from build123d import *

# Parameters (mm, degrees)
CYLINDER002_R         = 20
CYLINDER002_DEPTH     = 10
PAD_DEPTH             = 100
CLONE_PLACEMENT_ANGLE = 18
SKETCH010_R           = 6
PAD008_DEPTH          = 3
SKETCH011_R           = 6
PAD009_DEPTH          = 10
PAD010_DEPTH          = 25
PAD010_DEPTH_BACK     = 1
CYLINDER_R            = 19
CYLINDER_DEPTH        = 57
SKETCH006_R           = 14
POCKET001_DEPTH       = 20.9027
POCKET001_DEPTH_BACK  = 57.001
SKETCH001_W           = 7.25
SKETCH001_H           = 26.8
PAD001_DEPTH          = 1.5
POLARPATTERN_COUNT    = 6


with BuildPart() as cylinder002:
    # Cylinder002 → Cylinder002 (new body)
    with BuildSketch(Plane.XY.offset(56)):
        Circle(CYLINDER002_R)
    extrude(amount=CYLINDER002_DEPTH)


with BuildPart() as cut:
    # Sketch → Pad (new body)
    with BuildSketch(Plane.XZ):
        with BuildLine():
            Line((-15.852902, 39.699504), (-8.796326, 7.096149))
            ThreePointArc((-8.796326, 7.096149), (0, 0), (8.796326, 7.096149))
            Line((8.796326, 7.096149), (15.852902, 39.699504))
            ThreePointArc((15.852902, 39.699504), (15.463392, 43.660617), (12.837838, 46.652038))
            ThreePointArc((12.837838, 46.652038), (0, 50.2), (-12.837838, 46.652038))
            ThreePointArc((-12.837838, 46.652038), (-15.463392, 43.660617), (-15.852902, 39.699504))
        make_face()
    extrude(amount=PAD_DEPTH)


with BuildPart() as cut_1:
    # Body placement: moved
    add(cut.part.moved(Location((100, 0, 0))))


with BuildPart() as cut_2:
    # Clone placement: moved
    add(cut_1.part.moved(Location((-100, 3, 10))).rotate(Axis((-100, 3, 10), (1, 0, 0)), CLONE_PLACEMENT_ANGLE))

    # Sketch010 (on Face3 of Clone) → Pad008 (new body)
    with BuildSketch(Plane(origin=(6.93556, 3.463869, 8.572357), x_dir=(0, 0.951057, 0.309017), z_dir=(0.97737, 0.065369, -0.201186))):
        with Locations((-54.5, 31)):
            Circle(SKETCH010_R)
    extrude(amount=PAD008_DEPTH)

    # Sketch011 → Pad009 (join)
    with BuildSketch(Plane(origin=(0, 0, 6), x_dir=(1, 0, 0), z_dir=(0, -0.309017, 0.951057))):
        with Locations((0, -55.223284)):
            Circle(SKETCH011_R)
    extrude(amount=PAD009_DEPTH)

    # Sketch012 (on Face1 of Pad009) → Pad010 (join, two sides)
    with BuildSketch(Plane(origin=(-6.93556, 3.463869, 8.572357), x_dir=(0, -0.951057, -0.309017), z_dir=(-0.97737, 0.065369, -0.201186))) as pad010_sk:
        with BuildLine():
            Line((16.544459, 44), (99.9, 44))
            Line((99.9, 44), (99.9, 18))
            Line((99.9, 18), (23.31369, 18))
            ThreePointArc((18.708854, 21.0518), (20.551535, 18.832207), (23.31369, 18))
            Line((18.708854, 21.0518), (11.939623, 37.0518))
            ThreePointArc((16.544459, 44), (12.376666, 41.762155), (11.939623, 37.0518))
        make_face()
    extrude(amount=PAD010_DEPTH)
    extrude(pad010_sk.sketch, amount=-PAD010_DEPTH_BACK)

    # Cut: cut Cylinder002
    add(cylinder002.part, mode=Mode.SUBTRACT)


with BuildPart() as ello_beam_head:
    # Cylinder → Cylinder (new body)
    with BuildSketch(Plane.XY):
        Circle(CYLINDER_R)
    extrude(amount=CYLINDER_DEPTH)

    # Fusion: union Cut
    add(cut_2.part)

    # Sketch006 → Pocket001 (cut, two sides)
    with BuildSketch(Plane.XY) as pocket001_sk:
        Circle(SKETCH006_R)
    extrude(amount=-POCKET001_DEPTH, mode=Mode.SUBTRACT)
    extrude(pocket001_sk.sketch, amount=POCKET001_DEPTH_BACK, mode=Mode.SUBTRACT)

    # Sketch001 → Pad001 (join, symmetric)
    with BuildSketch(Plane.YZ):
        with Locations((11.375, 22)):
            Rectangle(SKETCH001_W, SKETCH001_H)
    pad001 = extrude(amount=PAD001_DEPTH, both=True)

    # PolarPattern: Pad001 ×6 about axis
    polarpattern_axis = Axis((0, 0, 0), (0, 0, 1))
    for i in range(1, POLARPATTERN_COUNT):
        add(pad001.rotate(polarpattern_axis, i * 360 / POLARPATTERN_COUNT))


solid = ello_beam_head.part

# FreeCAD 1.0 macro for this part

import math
import FreeCAD as App
import Part
import Sketcher
from FreeCAD import Vector

doc = App.newDocument("Part")
body = doc.addObject("PartDesign::Body", "Body")

sketch1 = doc.addObject("Sketcher::SketchObject", "Sketch")
body.addObject(sketch1)
sketch1.AttachmentSupport = (doc.XY_Plane, [""])
sketch1.MapMode = "FlatFace"
sketch1.AttachmentOffset = App.Placement(Vector(0, 0, 56), App.Rotation())
sketch1.addGeometry(Part.Circle(Vector(0, 0, 0), Vector(0, 0, 1), 20), False)
sketch1.addConstraint([
    Sketcher.Constraint("Coincident", 0, 3, -1, 1),
    Sketcher.Constraint("Diameter", 0, 40.0),
])
pad1 = doc.addObject("PartDesign::Pad", "Pad")
body.addObject(pad1)
pad1.Profile = sketch1
pad1.Length = 10
body2 = doc.addObject("PartDesign::Body", "Body001")

sketch2 = doc.addObject("Sketcher::SketchObject", "Sketch001")
body2.addObject(sketch2)
sketch2.AttachmentSupport = (doc.getObject("XZ_Plane001"), [""])
sketch2.MapMode = "FlatFace"
sketch2.addGeometry([
    Part.LineSegment(Vector(-15.852902, 39.699504, 0), Vector(-8.796326, 7.096149, 0)),
    Part.ArcOfCircle(Part.Circle(Vector(0, 9, 0), Vector(0, 0, 1), 9), math.radians(-167.787443), math.radians(-12.212557)),
    Part.LineSegment(Vector(8.796326, 7.096149, 0), Vector(15.852902, 39.699504, 0)),
    Part.ArcOfCircle(Part.Circle(Vector(9.500001, 41.074509, 0), Vector(0, 0, 1), 6.499999), math.radians(-12.212568), math.radians(59.101855)),
    Part.ArcOfCircle(Part.Circle(Vector(0, 25.199997, 0), Vector(0, 0, 1), 25.000003), math.radians(59.101855), math.radians(120.898145)),
    Part.ArcOfCircle(Part.Circle(Vector(-9.500001, 41.074509, 0), Vector(0, 0, 1), 6.499999), math.radians(120.898145), math.radians(192.212568)),
], False)
sketch2.addConstraint([
    Sketcher.Constraint("Tangent", 0, 2, 1, 1),
    Sketcher.Constraint("Tangent", 1, 2, 2, 1),
    Sketcher.Constraint("Tangent", 2, 2, 3, 1),
    Sketcher.Constraint("Tangent", 3, 2, 4, 1),
    Sketcher.Constraint("Tangent", 4, 2, 5, 1),
    Sketcher.Constraint("Tangent", 5, 2, 0, 1),
    Sketcher.Constraint("Equal", 3, 5),
    Sketcher.Constraint("Symmetric", 3, 3, 5, 3, -2),
    Sketcher.Constraint("PointOnObject", 1, 3, -2),
    Sketcher.Constraint("Radius", 1, 9.0),
    Sketcher.Constraint("Radius", 3, 6.499999),
    Sketcher.Constraint("DistanceY", -1, 1, 1, 3, 9.0),
    Sketcher.Constraint("DistanceX", 5, 3, 3, 3, 19.000002),
    Sketcher.Constraint("Radius", 4, 25.000003),
    Sketcher.Constraint("DistanceX", 3, 3, 2, 2, 6.352901),
])
pad2 = doc.addObject("PartDesign::Pad", "Pad001")
body2.addObject(pad2)
pad2.Profile = sketch2
pad2.Length = 100
body3 = doc.addObject("PartDesign::Body", "Body002")
doc.recompute()

body2.Placement = App.Placement(Vector(100, 0, 0), App.Rotation(Vector(0, 0, 1), 0))
boolean = doc.addObject("PartDesign::Boolean", "Boolean")
body3.addObject(boolean)
boolean.Type = "Fuse"
boolean.addObjects([body2])
body4 = doc.addObject("PartDesign::Body", "Body003")
doc.recompute()

body3.Placement = App.Placement(Vector(-100, 3, 10), App.Rotation(Vector(1, 0, 0), 18))
boolean2 = doc.addObject("PartDesign::Boolean", "Boolean001")
body4.addObject(boolean2)
boolean2.Type = "Fuse"
boolean2.addObjects([body3])

sketch3 = doc.addObject("Sketcher::SketchObject", "Sketch002")
body4.addObject(sketch3)
sketch3.Placement = App.Placement(Vector(6.93556, 3.463869, 8.572357), App.Rotation(Vector(0.000000243, 0.951056577, 0.309016807), Vector(0.211539279, -0.30202365, 0.929533672), Vector(0.977369497, 0.065368966, -0.201185896), "ZXY"))
sketch3.addGeometry(Part.Circle(Vector(-54.5, 31, 0), Vector(0, 0, 1), 6), False)
sketch3.addConstraint([
    Sketcher.Constraint("Diameter", 0, 12.0),
    Sketcher.Constraint("DistanceY", -1, 1, 0, 3, 31.0),
    Sketcher.Constraint("DistanceX", 0, 3, -1, 1, 54.5),
])
pad3 = doc.addObject("PartDesign::Pad", "Pad002")
body4.addObject(pad3)
pad3.Profile = sketch3
pad3.Length = 3

sketch4 = doc.addObject("Sketcher::SketchObject", "Sketch003")
body4.addObject(sketch4)
sketch4.Placement = App.Placement(Vector(0, 0, 6), App.Rotation(Vector(1, 0, 0), Vector(0, 0.951056561, 0.309016857), Vector(0, -0.309016857, 0.951056561), "ZXY"))
sketch4.addGeometry(Part.Circle(Vector(0, -55.223284, 0), Vector(0, 0, 1), 6), False)
sketch4.addConstraint([
    Sketcher.Constraint("PointOnObject", 0, 3, -2),
    Sketcher.Constraint("Diameter", 0, 12.0),
    Sketcher.Constraint("DistanceY", 0, 3, -1, 1, 55.223284),
])
pad4 = doc.addObject("PartDesign::Pad", "Pad003")
body4.addObject(pad4)
pad4.Profile = sketch4
pad4.Length = 10

sketch5 = doc.addObject("Sketcher::SketchObject", "Sketch004")
body4.addObject(sketch5)
sketch5.Placement = App.Placement(Vector(-6.93556, 3.463869, 8.572357), App.Rotation(Vector(0.000000243, -0.951056577, -0.309016807), Vector(-0.211539279, -0.30202365, 0.929533672), Vector(-0.977369497, 0.065368966, -0.201185896), "ZXY"))
sketch5.addGeometry([
    Part.LineSegment(Vector(99.9, 44, 0), Vector(16.544459, 44, 0)),
    Part.ArcOfCircle(Part.Circle(Vector(16.544459, 39, 0), Vector(0, 0, 1), 5), math.radians(90.000001), math.radians(202.932103)),
    Part.LineSegment(Vector(11.939623, 37.0518, 0), Vector(18.708854, 21.0518, 0)),
    Part.ArcOfCircle(Part.Circle(Vector(23.31369, 23, 0), Vector(0, 0, 1), 5), math.radians(-157.067899), math.radians(-90.000003)),
    Part.LineSegment(Vector(23.31369, 18, 0), Vector(99.9, 18, 0)),
    Part.LineSegment(Vector(99.9, 18, 0), Vector(99.9, 44, 0)),
], False)
sketch5.addConstraint([
    Sketcher.Constraint("Tangent", 0, 2, 1, 1),
    Sketcher.Constraint("Tangent", 1, 2, 2, 1),
    Sketcher.Constraint("Tangent", 2, 2, 3, 1),
    Sketcher.Constraint("Tangent", 3, 2, 4, 1),
    Sketcher.Constraint("Coincident", 4, 2, 5, 1),
    Sketcher.Constraint("Coincident", 5, 2, 0, 1),
    Sketcher.Constraint("Horizontal", 0),
    Sketcher.Constraint("Horizontal", 4),
    Sketcher.Constraint("Vertical", 5),
    Sketcher.Constraint("Equal", 1, 3),
    Sketcher.Constraint("Radius", 1, 5.0),
    Sketcher.Constraint("DistanceY", 5, 1, 5, 2, 26.0),
    Sketcher.Constraint("DistanceY", -1, 1, 1, 3, 39.0),
    Sketcher.Constraint("DistanceX", -1, 1, 4, 2, 99.9),
    Sketcher.Constraint("DistanceX", 0, 2, 0, 1, 83.355541),
    Sketcher.Constraint("DistanceX", 4, 1, 4, 2, 76.58631),
])
pad5 = doc.addObject("PartDesign::Pad", "Pad004")
body4.addObject(pad5)
pad5.Profile = sketch5
pad5.Type = "TwoLengths"
pad5.Length = 25
pad5.Length2 = 1
doc.recompute()

boolean3 = doc.addObject("PartDesign::Boolean", "Boolean002")
body4.addObject(boolean3)
boolean3.Type = "Cut"
boolean3.addObjects([body])
body5 = doc.addObject("PartDesign::Body", "Body004")

sketch6 = doc.addObject("Sketcher::SketchObject", "Sketch005")
body5.addObject(sketch6)
sketch6.AttachmentSupport = (doc.getObject("XY_Plane004"), [""])
sketch6.MapMode = "FlatFace"
sketch6.addGeometry(Part.Circle(Vector(0, 0, 0), Vector(0, 0, 1), 19), False)
sketch6.addConstraint([
    Sketcher.Constraint("Coincident", 0, 3, -1, 1),
    Sketcher.Constraint("Diameter", 0, 38.0),
])
pad6 = doc.addObject("PartDesign::Pad", "Pad005")
body5.addObject(pad6)
pad6.Profile = sketch6
pad6.Length = 57
doc.recompute()

boolean4 = doc.addObject("PartDesign::Boolean", "Boolean003")
body5.addObject(boolean4)
boolean4.Type = "Fuse"
boolean4.addObjects([body4])

sketch7 = doc.addObject("Sketcher::SketchObject", "Sketch006")
body5.addObject(sketch7)
sketch7.AttachmentSupport = (doc.getObject("XY_Plane004"), [""])
sketch7.MapMode = "FlatFace"
sketch7.addGeometry(Part.Circle(Vector(0, 0, 0), Vector(0, 0, 1), 14), False)
sketch7.addConstraint([
    Sketcher.Constraint("Coincident", 0, 3, -1, 1),
    Sketcher.Constraint("Diameter", 0, 28.0),
])
pocket1 = doc.addObject("PartDesign::Pocket", "Pocket")
body5.addObject(pocket1)
pocket1.Profile = sketch7
pocket1.Type = "ThroughAll"
pocket1.Midplane = True

sketch8 = doc.addObject("Sketcher::SketchObject", "Sketch007")
body5.addObject(sketch8)
sketch8.AttachmentSupport = (doc.getObject("YZ_Plane004"), [""])
sketch8.MapMode = "FlatFace"
sketch8.addGeometry([
    Part.LineSegment(Vector(7.75, 35.4, 0), Vector(7.75, 8.6, 0)),
    Part.LineSegment(Vector(7.75, 8.6, 0), Vector(15, 8.6, 0)),
    Part.LineSegment(Vector(15, 8.6, 0), Vector(15, 35.4, 0)),
    Part.LineSegment(Vector(15, 35.4, 0), Vector(7.75, 35.4, 0)),
], False)
sketch8.addConstraint([
    Sketcher.Constraint("Coincident", 0, 2, 1, 1),
    Sketcher.Constraint("Coincident", 1, 2, 2, 1),
    Sketcher.Constraint("Coincident", 2, 2, 3, 1),
    Sketcher.Constraint("Coincident", 3, 2, 0, 1),
    Sketcher.Constraint("Vertical", 0),
    Sketcher.Constraint("Horizontal", 1),
    Sketcher.Constraint("Vertical", 2),
    Sketcher.Constraint("Horizontal", 3),
    Sketcher.Constraint("DistanceY", 0, 2, 0, 1, 26.8),
    Sketcher.Constraint("DistanceX", -1, 1, 1, 2, 15.0),
    Sketcher.Constraint("DistanceX", 1, 1, 1, 2, 7.25),
    Sketcher.Constraint("DistanceY", -1, 1, 0, 2, 8.6),
])
pad7 = doc.addObject("PartDesign::Pad", "Pad006")
body5.addObject(pad7)
pad7.Profile = sketch8
pad7.Length = 3
pad7.Midplane = True
doc.recompute()

polarpattern = doc.addObject("PartDesign::PolarPattern", "PolarPattern")
body5.addObject(polarpattern)
polarpattern.Originals = [pad7]
polarpattern.Axis = (doc.getObject("Z_Axis004"), [""])
polarpattern.Angle = 360
polarpattern.Occurrences = 6
body5.Tip = polarpattern

doc.recompute()
